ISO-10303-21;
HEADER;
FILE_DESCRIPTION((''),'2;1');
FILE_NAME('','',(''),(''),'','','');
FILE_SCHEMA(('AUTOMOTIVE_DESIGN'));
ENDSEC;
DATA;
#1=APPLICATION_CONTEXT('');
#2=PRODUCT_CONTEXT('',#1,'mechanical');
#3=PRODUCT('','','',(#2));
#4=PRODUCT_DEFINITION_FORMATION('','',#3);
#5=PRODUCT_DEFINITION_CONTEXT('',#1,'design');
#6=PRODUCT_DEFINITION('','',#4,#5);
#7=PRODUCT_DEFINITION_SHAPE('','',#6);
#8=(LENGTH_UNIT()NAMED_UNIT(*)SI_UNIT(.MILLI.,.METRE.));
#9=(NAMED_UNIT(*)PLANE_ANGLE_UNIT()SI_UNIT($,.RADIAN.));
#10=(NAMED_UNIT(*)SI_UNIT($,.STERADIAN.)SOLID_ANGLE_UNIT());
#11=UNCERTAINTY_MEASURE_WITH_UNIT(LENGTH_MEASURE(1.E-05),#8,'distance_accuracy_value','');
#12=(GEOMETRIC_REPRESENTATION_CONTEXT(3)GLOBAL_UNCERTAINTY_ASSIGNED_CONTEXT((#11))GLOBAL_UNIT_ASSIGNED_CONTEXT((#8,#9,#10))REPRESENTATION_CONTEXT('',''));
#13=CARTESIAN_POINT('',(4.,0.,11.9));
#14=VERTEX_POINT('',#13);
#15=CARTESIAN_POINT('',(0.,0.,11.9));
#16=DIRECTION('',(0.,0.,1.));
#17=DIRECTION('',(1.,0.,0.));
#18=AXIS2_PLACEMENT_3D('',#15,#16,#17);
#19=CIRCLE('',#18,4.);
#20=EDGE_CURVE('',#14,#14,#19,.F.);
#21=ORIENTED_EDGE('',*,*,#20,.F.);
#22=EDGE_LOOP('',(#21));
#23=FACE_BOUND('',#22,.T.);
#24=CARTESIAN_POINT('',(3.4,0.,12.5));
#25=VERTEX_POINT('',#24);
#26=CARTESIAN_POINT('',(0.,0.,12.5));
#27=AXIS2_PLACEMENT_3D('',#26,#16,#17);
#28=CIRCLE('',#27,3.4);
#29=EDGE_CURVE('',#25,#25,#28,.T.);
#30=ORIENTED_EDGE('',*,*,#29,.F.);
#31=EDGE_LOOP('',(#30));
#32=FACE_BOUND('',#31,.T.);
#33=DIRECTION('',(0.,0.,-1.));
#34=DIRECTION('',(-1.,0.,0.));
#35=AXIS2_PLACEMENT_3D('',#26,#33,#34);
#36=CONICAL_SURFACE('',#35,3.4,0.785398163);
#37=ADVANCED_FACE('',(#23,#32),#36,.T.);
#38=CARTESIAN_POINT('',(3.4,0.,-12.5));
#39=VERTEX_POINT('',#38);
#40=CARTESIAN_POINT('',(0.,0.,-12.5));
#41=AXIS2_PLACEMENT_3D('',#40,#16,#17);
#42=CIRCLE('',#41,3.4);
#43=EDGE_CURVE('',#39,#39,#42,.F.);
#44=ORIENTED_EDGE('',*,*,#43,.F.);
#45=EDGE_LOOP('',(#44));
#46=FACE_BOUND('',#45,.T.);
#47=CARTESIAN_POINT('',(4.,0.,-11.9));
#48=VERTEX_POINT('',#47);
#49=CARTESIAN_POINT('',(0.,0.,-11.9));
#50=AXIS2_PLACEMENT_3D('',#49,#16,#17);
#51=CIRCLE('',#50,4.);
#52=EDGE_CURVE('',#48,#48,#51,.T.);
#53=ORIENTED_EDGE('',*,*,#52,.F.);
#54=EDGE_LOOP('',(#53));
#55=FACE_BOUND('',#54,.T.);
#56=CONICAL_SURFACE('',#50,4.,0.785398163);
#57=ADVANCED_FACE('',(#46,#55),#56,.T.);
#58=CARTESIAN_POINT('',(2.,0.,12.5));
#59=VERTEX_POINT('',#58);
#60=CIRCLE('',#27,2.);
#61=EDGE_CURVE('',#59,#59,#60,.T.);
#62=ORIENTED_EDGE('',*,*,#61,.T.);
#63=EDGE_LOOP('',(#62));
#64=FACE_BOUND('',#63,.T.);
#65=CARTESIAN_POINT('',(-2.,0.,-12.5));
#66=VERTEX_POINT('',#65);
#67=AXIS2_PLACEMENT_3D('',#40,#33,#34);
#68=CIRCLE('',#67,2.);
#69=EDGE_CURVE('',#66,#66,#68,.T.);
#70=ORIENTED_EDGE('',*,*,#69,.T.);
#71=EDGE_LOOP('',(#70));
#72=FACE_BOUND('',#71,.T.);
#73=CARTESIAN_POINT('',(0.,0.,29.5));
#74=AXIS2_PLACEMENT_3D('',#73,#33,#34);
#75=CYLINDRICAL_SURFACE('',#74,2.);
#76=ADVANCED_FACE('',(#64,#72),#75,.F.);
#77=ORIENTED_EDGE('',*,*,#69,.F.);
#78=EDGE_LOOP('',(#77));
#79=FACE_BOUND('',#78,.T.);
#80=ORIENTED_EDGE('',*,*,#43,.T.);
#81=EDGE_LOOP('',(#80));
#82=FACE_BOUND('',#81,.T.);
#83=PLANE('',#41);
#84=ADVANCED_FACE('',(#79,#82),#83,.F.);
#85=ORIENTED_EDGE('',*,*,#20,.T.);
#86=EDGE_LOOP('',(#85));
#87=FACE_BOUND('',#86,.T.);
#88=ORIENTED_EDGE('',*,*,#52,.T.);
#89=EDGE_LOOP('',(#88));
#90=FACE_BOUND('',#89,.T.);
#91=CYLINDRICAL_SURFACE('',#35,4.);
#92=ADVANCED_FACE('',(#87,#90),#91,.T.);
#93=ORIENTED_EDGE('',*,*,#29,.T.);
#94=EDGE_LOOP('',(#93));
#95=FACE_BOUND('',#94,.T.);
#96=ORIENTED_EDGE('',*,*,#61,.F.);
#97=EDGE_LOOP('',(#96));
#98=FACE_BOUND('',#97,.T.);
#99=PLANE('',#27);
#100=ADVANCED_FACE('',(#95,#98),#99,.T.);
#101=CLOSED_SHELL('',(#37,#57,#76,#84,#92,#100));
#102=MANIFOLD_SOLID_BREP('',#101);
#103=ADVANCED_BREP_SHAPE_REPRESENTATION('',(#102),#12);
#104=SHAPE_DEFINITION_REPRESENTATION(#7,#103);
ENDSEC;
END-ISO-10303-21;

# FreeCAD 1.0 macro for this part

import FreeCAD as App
import Part
import Sketcher

V = App.Vector


def edges_at(feature, points):
    """Names of the edges that pass closest to the given points."""
    edges = feature.Shape.Edges
    near = lambda p: min(range(len(edges)), key=lambda i: edges[i].distToShape(Part.Vertex(*p))[0])
    return sorted({f"Edge{near(p) + 1}" for p in points})

doc = App.newDocument("Part")
body = doc.addObject("PartDesign::Body", "Body")

sketch1 = body.newObject("Sketcher::SketchObject", "Sketch")
sketch1.AttachmentSupport = (doc.getObject("XY_Plane"), [""])
sketch1.MapMode = "FlatFace"
sketch1.addGeometry(Part.Circle(V(0, 0, 0), V(0, 0, 1), 4), False)
sketch1.addConstraint([
    Sketcher.Constraint("Coincident", 0, 3, -1, 1),
    Sketcher.Constraint("Diameter", 0, 8.0),
])
pad1 = body.newObject("PartDesign::Pad", "Pad")
pad1.Profile = sketch1
pad1.Type = "TwoLengths"
pad1.Length = 12.5
pad1.Length2 = 12.5
doc.recompute()

chamfer = body.newObject("PartDesign::Chamfer", "Chamfer")
chamfer.Base = (pad1, edges_at(pad1, [(-4, 0, -12.5), (-4, 0, 12.5)]))
chamfer.Size = 0.6

sketch2 = body.newObject("Sketcher::SketchObject", "Sketch001")
sketch2.AttachmentSupport = (doc.getObject("XY_Plane"), [""])
sketch2.MapMode = "FlatFace"
sketch2.AttachmentOffset = App.Placement(V(0, 0, -12.5), App.Rotation())
sketch2.addGeometry(Part.Circle(V(0, 0, 0), V(0, 0, 1), 2), False)
sketch2.addConstraint([
    Sketcher.Constraint("Coincident", 0, 3, -1, 1),
    Sketcher.Constraint("Diameter", 0, 4.0),
])
pocket1 = body.newObject("PartDesign::Pocket", "Pocket")
pocket1.Profile = sketch2
pocket1.Length = 42
pocket1.Reversed = True

doc.recompute()
